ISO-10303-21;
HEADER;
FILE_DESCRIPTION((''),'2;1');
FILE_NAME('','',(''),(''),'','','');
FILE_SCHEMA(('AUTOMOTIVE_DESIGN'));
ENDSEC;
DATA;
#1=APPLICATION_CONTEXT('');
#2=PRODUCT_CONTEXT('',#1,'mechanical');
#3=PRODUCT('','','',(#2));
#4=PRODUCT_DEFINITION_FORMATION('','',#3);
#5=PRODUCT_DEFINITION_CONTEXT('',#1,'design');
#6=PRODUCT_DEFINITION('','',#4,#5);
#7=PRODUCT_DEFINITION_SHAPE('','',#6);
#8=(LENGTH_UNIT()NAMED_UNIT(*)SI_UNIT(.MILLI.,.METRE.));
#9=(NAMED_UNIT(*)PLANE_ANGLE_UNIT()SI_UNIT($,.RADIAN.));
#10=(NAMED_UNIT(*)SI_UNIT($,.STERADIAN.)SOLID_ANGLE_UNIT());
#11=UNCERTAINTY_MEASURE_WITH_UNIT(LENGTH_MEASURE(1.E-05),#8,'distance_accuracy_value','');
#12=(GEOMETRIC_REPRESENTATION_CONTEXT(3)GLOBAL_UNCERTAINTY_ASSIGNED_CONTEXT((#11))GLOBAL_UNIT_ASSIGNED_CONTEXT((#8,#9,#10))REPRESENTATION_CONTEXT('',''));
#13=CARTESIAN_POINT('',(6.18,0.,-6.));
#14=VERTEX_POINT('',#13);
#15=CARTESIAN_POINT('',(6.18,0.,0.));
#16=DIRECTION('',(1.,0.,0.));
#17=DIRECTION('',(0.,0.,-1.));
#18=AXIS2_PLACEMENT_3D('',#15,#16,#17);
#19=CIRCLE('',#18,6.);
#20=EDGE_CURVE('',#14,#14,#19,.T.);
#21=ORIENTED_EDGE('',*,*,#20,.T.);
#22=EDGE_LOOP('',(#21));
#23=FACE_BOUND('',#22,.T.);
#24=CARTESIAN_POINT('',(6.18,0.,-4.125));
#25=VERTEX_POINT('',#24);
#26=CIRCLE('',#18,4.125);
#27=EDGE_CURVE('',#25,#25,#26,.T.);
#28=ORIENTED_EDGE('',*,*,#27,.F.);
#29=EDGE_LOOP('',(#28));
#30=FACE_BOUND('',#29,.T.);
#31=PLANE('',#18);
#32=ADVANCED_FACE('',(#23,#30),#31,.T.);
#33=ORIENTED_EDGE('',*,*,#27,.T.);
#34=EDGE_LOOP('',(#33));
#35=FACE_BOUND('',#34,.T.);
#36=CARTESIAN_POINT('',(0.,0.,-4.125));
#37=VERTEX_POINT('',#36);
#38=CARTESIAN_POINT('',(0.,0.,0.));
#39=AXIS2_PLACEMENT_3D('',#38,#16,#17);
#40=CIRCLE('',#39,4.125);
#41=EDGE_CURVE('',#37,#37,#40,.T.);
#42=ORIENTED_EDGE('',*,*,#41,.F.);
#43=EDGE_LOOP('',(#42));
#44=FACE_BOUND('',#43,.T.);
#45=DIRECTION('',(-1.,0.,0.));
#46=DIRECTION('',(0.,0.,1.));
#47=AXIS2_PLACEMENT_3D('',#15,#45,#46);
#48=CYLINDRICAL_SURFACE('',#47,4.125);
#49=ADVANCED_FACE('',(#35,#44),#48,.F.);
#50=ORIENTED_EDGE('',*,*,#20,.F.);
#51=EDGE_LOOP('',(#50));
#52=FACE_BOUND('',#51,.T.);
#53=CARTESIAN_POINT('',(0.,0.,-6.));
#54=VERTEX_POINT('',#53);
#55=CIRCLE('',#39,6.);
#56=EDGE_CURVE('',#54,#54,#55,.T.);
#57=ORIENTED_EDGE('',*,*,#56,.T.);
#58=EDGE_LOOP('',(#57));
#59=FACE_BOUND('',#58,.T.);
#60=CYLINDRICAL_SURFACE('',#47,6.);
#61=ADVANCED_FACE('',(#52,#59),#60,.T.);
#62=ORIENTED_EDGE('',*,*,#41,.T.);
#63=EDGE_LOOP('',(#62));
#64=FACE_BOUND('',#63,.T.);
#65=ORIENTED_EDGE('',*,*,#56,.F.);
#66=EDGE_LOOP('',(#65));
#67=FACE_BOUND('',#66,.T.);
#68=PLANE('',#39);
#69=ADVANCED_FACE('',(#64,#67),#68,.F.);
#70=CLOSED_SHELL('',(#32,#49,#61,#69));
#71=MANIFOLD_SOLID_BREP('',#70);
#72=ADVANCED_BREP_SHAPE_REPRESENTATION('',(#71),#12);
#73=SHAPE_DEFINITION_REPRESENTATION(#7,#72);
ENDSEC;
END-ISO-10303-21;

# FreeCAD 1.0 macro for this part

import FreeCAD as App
import Part
import Sketcher
from FreeCAD import Vector

doc = App.newDocument("Part")
body = doc.addObject("PartDesign::Body", "Body")

sketch1 = body.newObject("Sketcher::SketchObject", "Sketch")
sketch1.AttachmentSupport = (doc.getObject("YZ_Plane"), [""])
sketch1.MapMode = "FlatFace"
sketch1.addGeometry(Part.Circle(Vector(0, 0, 0), Vector(0, 0, 1), 6), False)
sketch1.addGeometry(Part.Circle(Vector(0, 0, 0), Vector(0, 0, 1), 4.125), False)
sketch1.addConstraint(Sketcher.Constraint("Coincident", 0, 3, -1, 1))
sketch1.addConstraint(Sketcher.Constraint("Coincident", 1, 3, -1, 1))
sketch1.addConstraint(Sketcher.Constraint("Diameter", 0, 12.0))
sketch1.addConstraint(Sketcher.Constraint("Diameter", 1, 8.25))
pad1 = body.newObject("PartDesign::Pad", "Pad")
pad1.Profile = sketch1
pad1.Length = 6.18

doc.recompute()
